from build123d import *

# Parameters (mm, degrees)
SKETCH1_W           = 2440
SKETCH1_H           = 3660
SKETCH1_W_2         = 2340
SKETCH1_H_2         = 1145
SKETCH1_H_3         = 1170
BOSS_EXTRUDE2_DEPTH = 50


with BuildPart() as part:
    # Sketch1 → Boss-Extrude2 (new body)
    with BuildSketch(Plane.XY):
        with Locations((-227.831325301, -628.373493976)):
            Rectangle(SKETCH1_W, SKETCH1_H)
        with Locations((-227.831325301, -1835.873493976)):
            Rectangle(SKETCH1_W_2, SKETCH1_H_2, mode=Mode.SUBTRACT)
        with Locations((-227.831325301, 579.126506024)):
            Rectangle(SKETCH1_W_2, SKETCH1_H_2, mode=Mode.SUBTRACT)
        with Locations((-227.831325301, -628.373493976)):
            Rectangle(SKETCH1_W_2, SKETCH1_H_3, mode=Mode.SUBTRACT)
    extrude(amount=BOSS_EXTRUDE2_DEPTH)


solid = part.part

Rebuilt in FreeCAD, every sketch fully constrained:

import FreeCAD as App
import Part
import Sketcher
from FreeCAD import Vector

doc = App.newDocument("Part")
params = doc.addObject("Spreadsheet::Sheet", "Params")
for row, (alias, value) in enumerate([
    ("sketch1_width", "2440 mm"),
    ("sketch1_width2", "2340 mm"),
    ("sketch1_height", "3660 mm"),
    ("sketch1_height2", "1145 mm"),
    ("sketch1_height3", "1170 mm"),
    ("pad1_length", "50 mm"),
], start=1):
    params.set(f"A{row}", alias)
    params.set(f"B{row}", "=" + value)
    params.setAlias(f"B{row}", alias)

body = doc.addObject("PartDesign::Body", "Body")

sketch1 = body.newObject("Sketcher::SketchObject", "Sketch")
sketch1.AttachmentSupport = (doc.getObject("XY_Plane"), [""])
sketch1.MapMode = "FlatFace"
sketch1.addGeometry(Part.LineSegment(Vector(-1448, 1202, 0), Vector(-1448, -2458, 0)), False)
sketch1.addGeometry(Part.LineSegment(Vector(-1448, -2458, 0), Vector(992, -2458, 0)), False)
sketch1.addGeometry(Part.LineSegment(Vector(992, -2458, 0), Vector(992, 1202, 0)), False)
sketch1.addGeometry(Part.LineSegment(Vector(992, 1202, 0), Vector(-1448, 1202, 0)), False)
sketch1.addGeometry(Part.LineSegment(Vector(942, -2408, 0), Vector(-1398, -2408, 0)), False)
sketch1.addGeometry(Part.LineSegment(Vector(-1398, -2408, 0), Vector(-1398, -1263, 0)), False)
sketch1.addGeometry(Part.LineSegment(Vector(-1398, -1263, 0), Vector(942, -1263, 0)), False)
sketch1.addGeometry(Part.LineSegment(Vector(942, -1263, 0), Vector(942, -2408, 0)), False)
sketch1.addGeometry(Part.LineSegment(Vector(942, -1213, 0), Vector(-1398, -1213, 0)), False)
sketch1.addGeometry(Part.LineSegment(Vector(-1398, -1213, 0), Vector(-1398, -43, 0)), False)
sketch1.addGeometry(Part.LineSegment(Vector(-1398, -43, 0), Vector(942, -43, 0)), False)
sketch1.addGeometry(Part.LineSegment(Vector(942, -43, 0), Vector(942, -1213, 0)), False)
sketch1.addGeometry(Part.LineSegment(Vector(942, 7, 0), Vector(-1398, 7, 0)), False)
sketch1.addGeometry(Part.LineSegment(Vector(-1398, 7, 0), Vector(-1398, 1152, 0)), False)
sketch1.addGeometry(Part.LineSegment(Vector(-1398, 1152, 0), Vector(942, 1152, 0)), False)
sketch1.addGeometry(Part.LineSegment(Vector(942, 1152, 0), Vector(942, 7, 0)), False)
sketch1.addConstraint(Sketcher.Constraint("Coincident", 0, 2, 1, 1))
sketch1.addConstraint(Sketcher.Constraint("Coincident", 1, 2, 2, 1))
sketch1.addConstraint(Sketcher.Constraint("Coincident", 2, 2, 3, 1))
sketch1.addConstraint(Sketcher.Constraint("Coincident", 3, 2, 0, 1))
sketch1.addConstraint(Sketcher.Constraint("Coincident", 4, 2, 5, 1))
sketch1.addConstraint(Sketcher.Constraint("Coincident", 5, 2, 6, 1))
sketch1.addConstraint(Sketcher.Constraint("Coincident", 6, 2, 7, 1))
sketch1.addConstraint(Sketcher.Constraint("Coincident", 7, 2, 4, 1))
sketch1.addConstraint(Sketcher.Constraint("Coincident", 8, 2, 9, 1))
sketch1.addConstraint(Sketcher.Constraint("Coincident", 9, 2, 10, 1))
sketch1.addConstraint(Sketcher.Constraint("Coincident", 10, 2, 11, 1))
sketch1.addConstraint(Sketcher.Constraint("Coincident", 11, 2, 8, 1))
sketch1.addConstraint(Sketcher.Constraint("Coincident", 12, 2, 13, 1))
sketch1.addConstraint(Sketcher.Constraint("Coincident", 13, 2, 14, 1))
sketch1.addConstraint(Sketcher.Constraint("Coincident", 14, 2, 15, 1))
sketch1.addConstraint(Sketcher.Constraint("Coincident", 15, 2, 12, 1))
sketch1.addConstraint(Sketcher.Constraint("Vertical", 0))
sketch1.addConstraint(Sketcher.Constraint("Horizontal", 1))
sketch1.addConstraint(Sketcher.Constraint("Vertical", 2))
sketch1.addConstraint(Sketcher.Constraint("Horizontal", 3))
sketch1.addConstraint(Sketcher.Constraint("Horizontal", 4))
sketch1.addConstraint(Sketcher.Constraint("Vertical", 5))
sketch1.addConstraint(Sketcher.Constraint("Horizontal", 6))
sketch1.addConstraint(Sketcher.Constraint("Vertical", 7))
sketch1.addConstraint(Sketcher.Constraint("Horizontal", 8))
sketch1.addConstraint(Sketcher.Constraint("Vertical", 9))
sketch1.addConstraint(Sketcher.Constraint("Horizontal", 10))
sketch1.addConstraint(Sketcher.Constraint("Vertical", 11))
sketch1.addConstraint(Sketcher.Constraint("Horizontal", 12))
sketch1.addConstraint(Sketcher.Constraint("Vertical", 13))
sketch1.addConstraint(Sketcher.Constraint("Horizontal", 14))
sketch1.addConstraint(Sketcher.Constraint("Vertical", 15))
sketch1.addConstraint(Sketcher.Constraint("Vertical", 5, 2, 8, 2))
sketch1.addConstraint(Sketcher.Constraint("Vertical", 7, 2, 10, 2))
sketch1.addConstraint(Sketcher.Constraint("Vertical", 9, 2, 12, 2))
sketch1.addConstraint(Sketcher.Constraint("Vertical", 11, 2, 14, 2))
sketch1.addConstraint(Sketcher.Constraint("Equal", 7, 13))
sketch1.addConstraint(Sketcher.Constraint("DistanceX", 1, 1, 1, 2, 2440.0))
sketch1.addConstraint(Sketcher.Constraint("DistanceX", 4, 2, 4, 1, 2340.0))
sketch1.addConstraint(Sketcher.Constraint("DistanceY", 0, 2, 0, 1, 3660.0))
sketch1.addConstraint(Sketcher.Constraint("DistanceY", 5, 1, 5, 2, 1145.0))
sketch1.addConstraint(Sketcher.Constraint("DistanceY", 9, 1, 9, 2, 1170.0))
sketch1.addConstraint(Sketcher.Constraint("DistanceX", 0, 2, 4, 2, 50.0))
sketch1.addConstraint(Sketcher.Constraint("DistanceY", 0, 2, 4, 2, 50.0))
sketch1.addConstraint(Sketcher.Constraint("DistanceY", 5, 2, 8, 2, 50.0))
sketch1.addConstraint(Sketcher.Constraint("DistanceY", 9, 2, 12, 2, 50.0))
sketch1.addConstraint(Sketcher.Constraint("DistanceX", 0, 2, -1, 1, 1447.831325))
sketch1.addConstraint(Sketcher.Constraint("DistanceY", 0, 2, -1, 1, 2458.373494))
sketch1.setExpression("Constraints[37]", "Params.sketch1_width")
sketch1.setExpression("Constraints[38]", "Params.sketch1_width2")
sketch1.setExpression("Constraints[39]", "Params.sketch1_height")
sketch1.setExpression("Constraints[40]", "Params.sketch1_height2")
sketch1.setExpression("Constraints[41]", "Params.sketch1_height3")
pad1 = body.newObject("PartDesign::Pad", "Pad")
pad1.Profile = sketch1
pad1.setExpression("Length", "Params.pad1_length")

doc.recompute()
